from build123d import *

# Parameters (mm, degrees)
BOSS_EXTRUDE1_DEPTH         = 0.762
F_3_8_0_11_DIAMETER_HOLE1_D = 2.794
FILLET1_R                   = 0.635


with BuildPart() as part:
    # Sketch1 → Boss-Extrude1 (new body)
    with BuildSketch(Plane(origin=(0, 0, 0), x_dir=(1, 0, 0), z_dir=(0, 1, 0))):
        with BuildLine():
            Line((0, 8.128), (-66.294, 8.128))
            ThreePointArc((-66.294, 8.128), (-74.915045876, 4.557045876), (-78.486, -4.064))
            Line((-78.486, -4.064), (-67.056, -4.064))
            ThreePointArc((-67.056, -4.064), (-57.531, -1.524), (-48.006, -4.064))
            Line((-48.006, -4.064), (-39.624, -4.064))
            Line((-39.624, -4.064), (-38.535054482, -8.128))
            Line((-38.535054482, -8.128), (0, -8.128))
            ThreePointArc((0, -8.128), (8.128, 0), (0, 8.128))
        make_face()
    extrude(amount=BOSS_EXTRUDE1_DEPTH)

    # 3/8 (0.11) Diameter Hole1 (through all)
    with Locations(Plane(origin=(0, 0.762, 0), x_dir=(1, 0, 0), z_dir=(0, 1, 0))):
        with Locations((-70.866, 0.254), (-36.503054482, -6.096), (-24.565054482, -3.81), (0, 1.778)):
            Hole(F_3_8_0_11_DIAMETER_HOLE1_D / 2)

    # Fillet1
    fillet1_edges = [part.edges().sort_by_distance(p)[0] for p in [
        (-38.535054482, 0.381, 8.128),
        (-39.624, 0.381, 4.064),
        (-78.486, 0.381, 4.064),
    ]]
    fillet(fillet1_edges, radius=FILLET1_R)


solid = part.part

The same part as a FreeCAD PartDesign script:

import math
import FreeCAD as App
import Part
import Sketcher
from FreeCAD import Vector
Q = App.Units.Quantity


def edges_at(feature, points):
    """Names of the edges that pass closest to the given points."""
    edges = feature.Shape.Edges
    near = lambda p: min(range(len(edges)), key=lambda i: edges[i].distToShape(Part.Vertex(*p))[0])
    return sorted({f"Edge{near(p) + 1}" for p in points})

doc = App.newDocument("Part")
body = doc.addObject("PartDesign::Body", "Body")

# Sketch on XZ plane
sketch1 = body.newObject("Sketcher::SketchObject", "Sketch")
sketch1.AttachmentSupport = (doc.getObject("XZ_Plane"), [""])
sketch1.MapMode = "FlatFace"
sketch1.addGeometry(Part.LineSegment(Vector(0, -8.1, 0), Vector(-66.3, -8.1, 0)), False)
sketch1.addGeometry(Part.ArcOfCircle(Part.Circle(Vector(-66.3, 4.1, 0), Vector(0, 0, 1), 12.2), math.radians(-180), math.radians(-90)), False)
sketch1.addGeometry(Part.LineSegment(Vector(-78.5, 4.1, 0), Vector(-67.1, 4.1, 0)), False)
sketch1.addGeometry(Part.ArcOfCircle(Part.Circle(Vector(-57.5, 20.7, 0), Vector(0, 0, 1), 19.1), math.radians(-120), math.radians(-60)), False)
sketch1.addGeometry(Part.LineSegment(Vector(-48, 4.1, 0), Vector(-39.6, 4.1, 0)), False)
sketch1.addGeometry(Part.LineSegment(Vector(-39.6, 4.1, 0), Vector(-38.5, 8.1, 0)), False)
sketch1.addGeometry(Part.LineSegment(Vector(-38.5, 8.1, 0), Vector(0, 8.1, 0)), False)
sketch1.addGeometry(Part.ArcOfCircle(Part.Circle(Vector(0, 0, 0), Vector(0, 0, 1), 8.1), math.radians(-90), math.radians(90)), False)
sketch1.addConstraint(Sketcher.Constraint("Tangent", 0, 2, 1, 2))
sketch1.addConstraint(Sketcher.Constraint("Coincident", 1, 1, 2, 1))
sketch1.addConstraint(Sketcher.Constraint("Coincident", 2, 2, 3, 1))
sketch1.addConstraint(Sketcher.Constraint("Coincident", 3, 2, 4, 1))
sketch1.addConstraint(Sketcher.Constraint("Coincident", 4, 2, 5, 1))
sketch1.addConstraint(Sketcher.Constraint("Coincident", 5, 2, 6, 1))
sketch1.addConstraint(Sketcher.Constraint("Tangent", 6, 2, 7, 2))
sketch1.addConstraint(Sketcher.Constraint("Tangent", 7, 1, 0, 1))
sketch1.addConstraint(Sketcher.Constraint("Horizontal", 0))
sketch1.addConstraint(Sketcher.Constraint("Horizontal", 2))
sketch1.addConstraint(Sketcher.Constraint("Horizontal", 4))
sketch1.addConstraint(Sketcher.Constraint("Horizontal", 6))
sketch1.addConstraint(Sketcher.Constraint("Coincident", 7, 3, -1, 1))
sketch1.addConstraint(Sketcher.Constraint("Horizontal", 2, 2, 3, 2))
sketch1.addConstraint(Sketcher.Constraint("Radius", 1, Q("0.48 in")))
sketch1.addConstraint(Sketcher.Constraint("Radius", 7, Q("0.32 in")))
sketch1.addConstraint(Sketcher.Constraint("Angle", 5, Q("75 deg")))
sketch1.addConstraint(Sketcher.Constraint("DistanceX", 0, 2, 0, 1, Q("2.61 in")))
sketch1.addConstraint(Sketcher.Constraint("DistanceX", 2, 1, 2, 2, Q("0.45 in")))
sketch1.addConstraint(Sketcher.Constraint("DistanceX", 4, 1, 4, 2, Q("0.33 in")))
sketch1.addConstraint(Sketcher.Constraint("DistanceX", 1, 1, 3, 2, Q("1.2 in")))
sketch1.addConstraint(Sketcher.Constraint("DistanceY", -1, 1, 1, 1, Q("0.16 in")))
sketch1.addConstraint(Sketcher.Constraint("Radius", 3, 19.129375))
pad1 = body.newObject("PartDesign::Pad", "Pad")
pad1.Profile = sketch1
pad1.Length = Q("0.03 in")
pad1.Reversed = True

# Sketch on XZ plane
sketch2 = body.newObject("Sketcher::SketchObject", "Sketch001")
sketch2.AttachmentSupport = (doc.getObject("XZ_Plane"), [""])
sketch2.MapMode = "FlatFace"
sketch2.AttachmentOffset = App.Placement(Vector(0, 0, -0.03 * 25.4), App.Rotation())
sketch2.addGeometry(Part.Circle(Vector(-70.9, -0.3, 0), Vector(0, 0, 1), 1.4), False)
sketch2.addGeometry(Part.Circle(Vector(-36.5, 6.1, 0), Vector(0, 0, 1), 1.4), False)
sketch2.addGeometry(Part.Circle(Vector(-24.6, 3.8, 0), Vector(0, 0, 1), 1.4), False)
sketch2.addGeometry(Part.Circle(Vector(0, -1.8, 0), Vector(0, 0, 1), 1.4), False)
sketch2.addConstraint(Sketcher.Constraint("Equal", 0, 1))
sketch2.addConstraint(Sketcher.Constraint("Equal", 1, 2))
sketch2.addConstraint(Sketcher.Constraint("Equal", 2, 3))
sketch2.addConstraint(Sketcher.Constraint("PointOnObject", 3, 3, -2))
sketch2.addConstraint(Sketcher.Constraint("Diameter", 0, Q("0.11 in")))
sketch2.addConstraint(Sketcher.Constraint("DistanceX", 0, 3, -1, 1, Q("2.79 in")))
sketch2.addConstraint(Sketcher.Constraint("DistanceY", 0, 3, -1, 1, Q("0.01 in")))
sketch2.addConstraint(Sketcher.Constraint("DistanceY", -1, 1, 1, 3, Q("0.24 in")))
sketch2.addConstraint(Sketcher.Constraint("DistanceY", -1, 1, 2, 3, Q("0.15 in")))
sketch2.addConstraint(Sketcher.Constraint("DistanceY", 3, 3, -1, 1, Q("0.07 in")))
sketch2.addConstraint(Sketcher.Constraint("DistanceX", 1, 3, 2, 3, Q("0.47 in")))
sketch2.addConstraint(Sketcher.Constraint("DistanceX", 1, 3, -1, 1, 36.503054))
doc.recompute()
hole = body.newObject("PartDesign::Hole", "Hole")
hole.Profile = sketch2
hole.ThreadType = "None"
hole.Diameter = Q("0.11 in")
hole.DepthType = "ThroughAll"
hole.Reversed = True
doc.recompute()

fillet = body.newObject("PartDesign::Fillet", "Fillet")
fillet.Base = (hole, edges_at(hole, [(-38.535, 0.381, 8.128), (-39.624, 0.381, 4.064), (-78.486, 0.381, 4.064)]))
fillet.Radius = Q("0.025 in")

doc.recompute()
